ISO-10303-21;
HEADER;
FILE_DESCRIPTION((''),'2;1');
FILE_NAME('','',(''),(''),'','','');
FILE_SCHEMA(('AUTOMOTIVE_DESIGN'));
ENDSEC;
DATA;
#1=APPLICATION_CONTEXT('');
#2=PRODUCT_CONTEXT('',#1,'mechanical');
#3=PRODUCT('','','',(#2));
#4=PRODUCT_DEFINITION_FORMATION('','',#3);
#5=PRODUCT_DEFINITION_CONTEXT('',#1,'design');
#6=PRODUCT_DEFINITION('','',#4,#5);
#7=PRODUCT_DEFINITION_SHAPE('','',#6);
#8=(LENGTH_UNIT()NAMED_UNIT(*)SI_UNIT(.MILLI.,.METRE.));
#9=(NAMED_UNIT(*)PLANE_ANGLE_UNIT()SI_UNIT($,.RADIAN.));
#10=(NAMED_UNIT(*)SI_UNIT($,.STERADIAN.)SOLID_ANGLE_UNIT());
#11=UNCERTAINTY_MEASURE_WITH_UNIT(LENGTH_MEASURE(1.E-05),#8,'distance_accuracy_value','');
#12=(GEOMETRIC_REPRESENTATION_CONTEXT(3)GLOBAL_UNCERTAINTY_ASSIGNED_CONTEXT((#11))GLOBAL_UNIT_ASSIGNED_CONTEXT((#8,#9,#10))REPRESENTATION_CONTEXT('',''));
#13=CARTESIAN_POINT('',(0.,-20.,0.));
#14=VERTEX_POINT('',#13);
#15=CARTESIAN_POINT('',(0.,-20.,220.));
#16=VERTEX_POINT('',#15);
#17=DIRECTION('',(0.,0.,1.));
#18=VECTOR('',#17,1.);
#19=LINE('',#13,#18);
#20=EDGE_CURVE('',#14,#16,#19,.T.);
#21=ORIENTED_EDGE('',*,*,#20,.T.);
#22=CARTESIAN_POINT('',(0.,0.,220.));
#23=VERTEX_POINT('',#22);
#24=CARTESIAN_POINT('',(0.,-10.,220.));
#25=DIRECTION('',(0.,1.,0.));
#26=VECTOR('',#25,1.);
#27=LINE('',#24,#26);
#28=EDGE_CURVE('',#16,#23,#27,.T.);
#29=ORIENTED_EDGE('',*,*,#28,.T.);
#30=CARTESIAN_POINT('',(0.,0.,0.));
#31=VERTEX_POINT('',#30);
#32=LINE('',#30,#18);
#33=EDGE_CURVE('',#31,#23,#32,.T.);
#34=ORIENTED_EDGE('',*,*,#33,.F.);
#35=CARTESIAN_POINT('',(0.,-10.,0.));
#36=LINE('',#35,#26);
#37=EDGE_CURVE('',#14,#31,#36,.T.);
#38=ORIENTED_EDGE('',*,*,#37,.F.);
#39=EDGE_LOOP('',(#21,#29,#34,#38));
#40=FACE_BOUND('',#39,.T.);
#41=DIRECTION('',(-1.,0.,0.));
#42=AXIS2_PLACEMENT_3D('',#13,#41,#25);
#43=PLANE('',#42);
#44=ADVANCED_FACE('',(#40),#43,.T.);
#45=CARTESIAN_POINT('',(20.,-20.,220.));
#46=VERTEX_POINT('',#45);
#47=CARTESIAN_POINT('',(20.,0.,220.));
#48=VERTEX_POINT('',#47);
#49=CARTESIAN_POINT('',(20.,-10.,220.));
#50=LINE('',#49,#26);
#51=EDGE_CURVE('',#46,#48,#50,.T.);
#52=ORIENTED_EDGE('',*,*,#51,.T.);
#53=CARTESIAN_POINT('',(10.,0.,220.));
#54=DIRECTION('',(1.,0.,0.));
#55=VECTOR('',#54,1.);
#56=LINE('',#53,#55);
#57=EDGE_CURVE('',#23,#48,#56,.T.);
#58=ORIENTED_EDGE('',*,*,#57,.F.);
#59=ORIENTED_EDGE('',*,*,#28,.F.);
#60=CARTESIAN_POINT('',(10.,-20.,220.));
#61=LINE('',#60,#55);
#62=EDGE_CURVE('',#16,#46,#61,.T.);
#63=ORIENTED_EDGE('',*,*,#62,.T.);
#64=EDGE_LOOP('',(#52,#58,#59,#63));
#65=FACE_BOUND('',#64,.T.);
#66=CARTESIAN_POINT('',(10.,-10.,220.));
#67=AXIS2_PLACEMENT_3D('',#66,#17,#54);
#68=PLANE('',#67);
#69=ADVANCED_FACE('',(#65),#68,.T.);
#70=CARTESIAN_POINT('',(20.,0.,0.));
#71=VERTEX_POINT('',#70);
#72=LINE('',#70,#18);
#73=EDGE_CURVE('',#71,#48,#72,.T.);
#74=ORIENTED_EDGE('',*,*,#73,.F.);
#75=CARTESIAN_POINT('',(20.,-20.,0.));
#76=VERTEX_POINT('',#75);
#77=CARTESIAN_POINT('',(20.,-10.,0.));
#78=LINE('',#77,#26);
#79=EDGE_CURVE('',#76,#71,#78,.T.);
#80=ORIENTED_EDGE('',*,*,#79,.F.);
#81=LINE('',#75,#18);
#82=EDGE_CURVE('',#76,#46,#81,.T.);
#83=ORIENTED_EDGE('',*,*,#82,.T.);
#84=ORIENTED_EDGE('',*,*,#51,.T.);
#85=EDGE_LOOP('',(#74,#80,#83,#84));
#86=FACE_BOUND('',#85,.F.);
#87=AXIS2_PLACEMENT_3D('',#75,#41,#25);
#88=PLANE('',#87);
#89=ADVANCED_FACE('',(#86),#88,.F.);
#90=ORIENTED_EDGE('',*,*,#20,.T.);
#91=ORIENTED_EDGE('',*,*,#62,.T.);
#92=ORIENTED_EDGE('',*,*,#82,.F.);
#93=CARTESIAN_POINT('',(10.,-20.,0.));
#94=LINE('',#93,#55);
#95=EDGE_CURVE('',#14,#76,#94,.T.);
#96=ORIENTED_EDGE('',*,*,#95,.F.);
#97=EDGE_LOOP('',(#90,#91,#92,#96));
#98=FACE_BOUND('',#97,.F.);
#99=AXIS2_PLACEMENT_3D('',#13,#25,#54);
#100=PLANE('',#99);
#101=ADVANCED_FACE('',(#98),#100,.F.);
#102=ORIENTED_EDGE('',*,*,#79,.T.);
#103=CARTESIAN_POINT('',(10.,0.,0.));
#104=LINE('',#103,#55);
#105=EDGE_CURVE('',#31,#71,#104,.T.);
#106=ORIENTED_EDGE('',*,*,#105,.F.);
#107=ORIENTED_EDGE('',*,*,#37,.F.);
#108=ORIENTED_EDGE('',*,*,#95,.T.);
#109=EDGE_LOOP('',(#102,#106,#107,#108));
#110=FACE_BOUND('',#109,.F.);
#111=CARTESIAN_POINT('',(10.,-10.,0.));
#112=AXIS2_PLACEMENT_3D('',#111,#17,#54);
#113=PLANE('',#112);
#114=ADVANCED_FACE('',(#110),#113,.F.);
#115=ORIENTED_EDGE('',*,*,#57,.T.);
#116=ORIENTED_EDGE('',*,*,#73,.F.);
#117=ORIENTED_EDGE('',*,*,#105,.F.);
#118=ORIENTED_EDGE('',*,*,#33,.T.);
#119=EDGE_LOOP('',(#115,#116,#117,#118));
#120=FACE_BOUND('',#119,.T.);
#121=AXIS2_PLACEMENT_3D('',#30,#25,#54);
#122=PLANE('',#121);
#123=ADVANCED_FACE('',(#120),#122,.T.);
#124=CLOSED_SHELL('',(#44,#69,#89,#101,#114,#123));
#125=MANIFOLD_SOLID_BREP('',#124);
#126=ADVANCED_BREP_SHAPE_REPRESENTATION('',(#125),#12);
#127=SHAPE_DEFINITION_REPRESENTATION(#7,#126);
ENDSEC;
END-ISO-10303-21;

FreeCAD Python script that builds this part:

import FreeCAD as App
import Part
import Sketcher
from FreeCAD import Vector
Q = App.Units.Quantity

doc = App.newDocument("Part")
body = doc.addObject("PartDesign::Body", "Body")

# Sketch on XY plane
sketch1 = body.newObject("Sketcher::SketchObject", "Sketch")
sketch1.AttachmentSupport = (doc.getObject("XY_Plane"), [""])
sketch1.MapMode = "FlatFace"
sketch1.addGeometry([
    Part.LineSegment(Vector(0, 0, 0), Vector(0, -20, 0)),
    Part.LineSegment(Vector(0, -20, 0), Vector(20, -20, 0)),
    Part.LineSegment(Vector(20, -20, 0), Vector(20, 0, 0)),
    Part.LineSegment(Vector(20, 0, 0), Vector(0, 0, 0)),
], False)
sketch1.addConstraint([
    Sketcher.Constraint("Coincident", 0, 2, 1, 1),
    Sketcher.Constraint("Coincident", 1, 2, 2, 1),
    Sketcher.Constraint("Coincident", 2, 2, 3, 1),
    Sketcher.Constraint("Coincident", 3, 2, 0, 1),
    Sketcher.Constraint("Vertical", 0),
    Sketcher.Constraint("Horizontal", 1),
    Sketcher.Constraint("Vertical", 2),
    Sketcher.Constraint("Horizontal", 3),
    Sketcher.Constraint("Coincident", 3, 2, -1, 1),
    Sketcher.Constraint("Equal", 3, 0),
    Sketcher.Constraint("DistanceX", 1, 1, 1, 2, Q("20 mm")),
])
pad1 = body.newObject("PartDesign::Pad", "Pad")
pad1.Profile = sketch1
pad1.Length = 220

doc.recompute()
